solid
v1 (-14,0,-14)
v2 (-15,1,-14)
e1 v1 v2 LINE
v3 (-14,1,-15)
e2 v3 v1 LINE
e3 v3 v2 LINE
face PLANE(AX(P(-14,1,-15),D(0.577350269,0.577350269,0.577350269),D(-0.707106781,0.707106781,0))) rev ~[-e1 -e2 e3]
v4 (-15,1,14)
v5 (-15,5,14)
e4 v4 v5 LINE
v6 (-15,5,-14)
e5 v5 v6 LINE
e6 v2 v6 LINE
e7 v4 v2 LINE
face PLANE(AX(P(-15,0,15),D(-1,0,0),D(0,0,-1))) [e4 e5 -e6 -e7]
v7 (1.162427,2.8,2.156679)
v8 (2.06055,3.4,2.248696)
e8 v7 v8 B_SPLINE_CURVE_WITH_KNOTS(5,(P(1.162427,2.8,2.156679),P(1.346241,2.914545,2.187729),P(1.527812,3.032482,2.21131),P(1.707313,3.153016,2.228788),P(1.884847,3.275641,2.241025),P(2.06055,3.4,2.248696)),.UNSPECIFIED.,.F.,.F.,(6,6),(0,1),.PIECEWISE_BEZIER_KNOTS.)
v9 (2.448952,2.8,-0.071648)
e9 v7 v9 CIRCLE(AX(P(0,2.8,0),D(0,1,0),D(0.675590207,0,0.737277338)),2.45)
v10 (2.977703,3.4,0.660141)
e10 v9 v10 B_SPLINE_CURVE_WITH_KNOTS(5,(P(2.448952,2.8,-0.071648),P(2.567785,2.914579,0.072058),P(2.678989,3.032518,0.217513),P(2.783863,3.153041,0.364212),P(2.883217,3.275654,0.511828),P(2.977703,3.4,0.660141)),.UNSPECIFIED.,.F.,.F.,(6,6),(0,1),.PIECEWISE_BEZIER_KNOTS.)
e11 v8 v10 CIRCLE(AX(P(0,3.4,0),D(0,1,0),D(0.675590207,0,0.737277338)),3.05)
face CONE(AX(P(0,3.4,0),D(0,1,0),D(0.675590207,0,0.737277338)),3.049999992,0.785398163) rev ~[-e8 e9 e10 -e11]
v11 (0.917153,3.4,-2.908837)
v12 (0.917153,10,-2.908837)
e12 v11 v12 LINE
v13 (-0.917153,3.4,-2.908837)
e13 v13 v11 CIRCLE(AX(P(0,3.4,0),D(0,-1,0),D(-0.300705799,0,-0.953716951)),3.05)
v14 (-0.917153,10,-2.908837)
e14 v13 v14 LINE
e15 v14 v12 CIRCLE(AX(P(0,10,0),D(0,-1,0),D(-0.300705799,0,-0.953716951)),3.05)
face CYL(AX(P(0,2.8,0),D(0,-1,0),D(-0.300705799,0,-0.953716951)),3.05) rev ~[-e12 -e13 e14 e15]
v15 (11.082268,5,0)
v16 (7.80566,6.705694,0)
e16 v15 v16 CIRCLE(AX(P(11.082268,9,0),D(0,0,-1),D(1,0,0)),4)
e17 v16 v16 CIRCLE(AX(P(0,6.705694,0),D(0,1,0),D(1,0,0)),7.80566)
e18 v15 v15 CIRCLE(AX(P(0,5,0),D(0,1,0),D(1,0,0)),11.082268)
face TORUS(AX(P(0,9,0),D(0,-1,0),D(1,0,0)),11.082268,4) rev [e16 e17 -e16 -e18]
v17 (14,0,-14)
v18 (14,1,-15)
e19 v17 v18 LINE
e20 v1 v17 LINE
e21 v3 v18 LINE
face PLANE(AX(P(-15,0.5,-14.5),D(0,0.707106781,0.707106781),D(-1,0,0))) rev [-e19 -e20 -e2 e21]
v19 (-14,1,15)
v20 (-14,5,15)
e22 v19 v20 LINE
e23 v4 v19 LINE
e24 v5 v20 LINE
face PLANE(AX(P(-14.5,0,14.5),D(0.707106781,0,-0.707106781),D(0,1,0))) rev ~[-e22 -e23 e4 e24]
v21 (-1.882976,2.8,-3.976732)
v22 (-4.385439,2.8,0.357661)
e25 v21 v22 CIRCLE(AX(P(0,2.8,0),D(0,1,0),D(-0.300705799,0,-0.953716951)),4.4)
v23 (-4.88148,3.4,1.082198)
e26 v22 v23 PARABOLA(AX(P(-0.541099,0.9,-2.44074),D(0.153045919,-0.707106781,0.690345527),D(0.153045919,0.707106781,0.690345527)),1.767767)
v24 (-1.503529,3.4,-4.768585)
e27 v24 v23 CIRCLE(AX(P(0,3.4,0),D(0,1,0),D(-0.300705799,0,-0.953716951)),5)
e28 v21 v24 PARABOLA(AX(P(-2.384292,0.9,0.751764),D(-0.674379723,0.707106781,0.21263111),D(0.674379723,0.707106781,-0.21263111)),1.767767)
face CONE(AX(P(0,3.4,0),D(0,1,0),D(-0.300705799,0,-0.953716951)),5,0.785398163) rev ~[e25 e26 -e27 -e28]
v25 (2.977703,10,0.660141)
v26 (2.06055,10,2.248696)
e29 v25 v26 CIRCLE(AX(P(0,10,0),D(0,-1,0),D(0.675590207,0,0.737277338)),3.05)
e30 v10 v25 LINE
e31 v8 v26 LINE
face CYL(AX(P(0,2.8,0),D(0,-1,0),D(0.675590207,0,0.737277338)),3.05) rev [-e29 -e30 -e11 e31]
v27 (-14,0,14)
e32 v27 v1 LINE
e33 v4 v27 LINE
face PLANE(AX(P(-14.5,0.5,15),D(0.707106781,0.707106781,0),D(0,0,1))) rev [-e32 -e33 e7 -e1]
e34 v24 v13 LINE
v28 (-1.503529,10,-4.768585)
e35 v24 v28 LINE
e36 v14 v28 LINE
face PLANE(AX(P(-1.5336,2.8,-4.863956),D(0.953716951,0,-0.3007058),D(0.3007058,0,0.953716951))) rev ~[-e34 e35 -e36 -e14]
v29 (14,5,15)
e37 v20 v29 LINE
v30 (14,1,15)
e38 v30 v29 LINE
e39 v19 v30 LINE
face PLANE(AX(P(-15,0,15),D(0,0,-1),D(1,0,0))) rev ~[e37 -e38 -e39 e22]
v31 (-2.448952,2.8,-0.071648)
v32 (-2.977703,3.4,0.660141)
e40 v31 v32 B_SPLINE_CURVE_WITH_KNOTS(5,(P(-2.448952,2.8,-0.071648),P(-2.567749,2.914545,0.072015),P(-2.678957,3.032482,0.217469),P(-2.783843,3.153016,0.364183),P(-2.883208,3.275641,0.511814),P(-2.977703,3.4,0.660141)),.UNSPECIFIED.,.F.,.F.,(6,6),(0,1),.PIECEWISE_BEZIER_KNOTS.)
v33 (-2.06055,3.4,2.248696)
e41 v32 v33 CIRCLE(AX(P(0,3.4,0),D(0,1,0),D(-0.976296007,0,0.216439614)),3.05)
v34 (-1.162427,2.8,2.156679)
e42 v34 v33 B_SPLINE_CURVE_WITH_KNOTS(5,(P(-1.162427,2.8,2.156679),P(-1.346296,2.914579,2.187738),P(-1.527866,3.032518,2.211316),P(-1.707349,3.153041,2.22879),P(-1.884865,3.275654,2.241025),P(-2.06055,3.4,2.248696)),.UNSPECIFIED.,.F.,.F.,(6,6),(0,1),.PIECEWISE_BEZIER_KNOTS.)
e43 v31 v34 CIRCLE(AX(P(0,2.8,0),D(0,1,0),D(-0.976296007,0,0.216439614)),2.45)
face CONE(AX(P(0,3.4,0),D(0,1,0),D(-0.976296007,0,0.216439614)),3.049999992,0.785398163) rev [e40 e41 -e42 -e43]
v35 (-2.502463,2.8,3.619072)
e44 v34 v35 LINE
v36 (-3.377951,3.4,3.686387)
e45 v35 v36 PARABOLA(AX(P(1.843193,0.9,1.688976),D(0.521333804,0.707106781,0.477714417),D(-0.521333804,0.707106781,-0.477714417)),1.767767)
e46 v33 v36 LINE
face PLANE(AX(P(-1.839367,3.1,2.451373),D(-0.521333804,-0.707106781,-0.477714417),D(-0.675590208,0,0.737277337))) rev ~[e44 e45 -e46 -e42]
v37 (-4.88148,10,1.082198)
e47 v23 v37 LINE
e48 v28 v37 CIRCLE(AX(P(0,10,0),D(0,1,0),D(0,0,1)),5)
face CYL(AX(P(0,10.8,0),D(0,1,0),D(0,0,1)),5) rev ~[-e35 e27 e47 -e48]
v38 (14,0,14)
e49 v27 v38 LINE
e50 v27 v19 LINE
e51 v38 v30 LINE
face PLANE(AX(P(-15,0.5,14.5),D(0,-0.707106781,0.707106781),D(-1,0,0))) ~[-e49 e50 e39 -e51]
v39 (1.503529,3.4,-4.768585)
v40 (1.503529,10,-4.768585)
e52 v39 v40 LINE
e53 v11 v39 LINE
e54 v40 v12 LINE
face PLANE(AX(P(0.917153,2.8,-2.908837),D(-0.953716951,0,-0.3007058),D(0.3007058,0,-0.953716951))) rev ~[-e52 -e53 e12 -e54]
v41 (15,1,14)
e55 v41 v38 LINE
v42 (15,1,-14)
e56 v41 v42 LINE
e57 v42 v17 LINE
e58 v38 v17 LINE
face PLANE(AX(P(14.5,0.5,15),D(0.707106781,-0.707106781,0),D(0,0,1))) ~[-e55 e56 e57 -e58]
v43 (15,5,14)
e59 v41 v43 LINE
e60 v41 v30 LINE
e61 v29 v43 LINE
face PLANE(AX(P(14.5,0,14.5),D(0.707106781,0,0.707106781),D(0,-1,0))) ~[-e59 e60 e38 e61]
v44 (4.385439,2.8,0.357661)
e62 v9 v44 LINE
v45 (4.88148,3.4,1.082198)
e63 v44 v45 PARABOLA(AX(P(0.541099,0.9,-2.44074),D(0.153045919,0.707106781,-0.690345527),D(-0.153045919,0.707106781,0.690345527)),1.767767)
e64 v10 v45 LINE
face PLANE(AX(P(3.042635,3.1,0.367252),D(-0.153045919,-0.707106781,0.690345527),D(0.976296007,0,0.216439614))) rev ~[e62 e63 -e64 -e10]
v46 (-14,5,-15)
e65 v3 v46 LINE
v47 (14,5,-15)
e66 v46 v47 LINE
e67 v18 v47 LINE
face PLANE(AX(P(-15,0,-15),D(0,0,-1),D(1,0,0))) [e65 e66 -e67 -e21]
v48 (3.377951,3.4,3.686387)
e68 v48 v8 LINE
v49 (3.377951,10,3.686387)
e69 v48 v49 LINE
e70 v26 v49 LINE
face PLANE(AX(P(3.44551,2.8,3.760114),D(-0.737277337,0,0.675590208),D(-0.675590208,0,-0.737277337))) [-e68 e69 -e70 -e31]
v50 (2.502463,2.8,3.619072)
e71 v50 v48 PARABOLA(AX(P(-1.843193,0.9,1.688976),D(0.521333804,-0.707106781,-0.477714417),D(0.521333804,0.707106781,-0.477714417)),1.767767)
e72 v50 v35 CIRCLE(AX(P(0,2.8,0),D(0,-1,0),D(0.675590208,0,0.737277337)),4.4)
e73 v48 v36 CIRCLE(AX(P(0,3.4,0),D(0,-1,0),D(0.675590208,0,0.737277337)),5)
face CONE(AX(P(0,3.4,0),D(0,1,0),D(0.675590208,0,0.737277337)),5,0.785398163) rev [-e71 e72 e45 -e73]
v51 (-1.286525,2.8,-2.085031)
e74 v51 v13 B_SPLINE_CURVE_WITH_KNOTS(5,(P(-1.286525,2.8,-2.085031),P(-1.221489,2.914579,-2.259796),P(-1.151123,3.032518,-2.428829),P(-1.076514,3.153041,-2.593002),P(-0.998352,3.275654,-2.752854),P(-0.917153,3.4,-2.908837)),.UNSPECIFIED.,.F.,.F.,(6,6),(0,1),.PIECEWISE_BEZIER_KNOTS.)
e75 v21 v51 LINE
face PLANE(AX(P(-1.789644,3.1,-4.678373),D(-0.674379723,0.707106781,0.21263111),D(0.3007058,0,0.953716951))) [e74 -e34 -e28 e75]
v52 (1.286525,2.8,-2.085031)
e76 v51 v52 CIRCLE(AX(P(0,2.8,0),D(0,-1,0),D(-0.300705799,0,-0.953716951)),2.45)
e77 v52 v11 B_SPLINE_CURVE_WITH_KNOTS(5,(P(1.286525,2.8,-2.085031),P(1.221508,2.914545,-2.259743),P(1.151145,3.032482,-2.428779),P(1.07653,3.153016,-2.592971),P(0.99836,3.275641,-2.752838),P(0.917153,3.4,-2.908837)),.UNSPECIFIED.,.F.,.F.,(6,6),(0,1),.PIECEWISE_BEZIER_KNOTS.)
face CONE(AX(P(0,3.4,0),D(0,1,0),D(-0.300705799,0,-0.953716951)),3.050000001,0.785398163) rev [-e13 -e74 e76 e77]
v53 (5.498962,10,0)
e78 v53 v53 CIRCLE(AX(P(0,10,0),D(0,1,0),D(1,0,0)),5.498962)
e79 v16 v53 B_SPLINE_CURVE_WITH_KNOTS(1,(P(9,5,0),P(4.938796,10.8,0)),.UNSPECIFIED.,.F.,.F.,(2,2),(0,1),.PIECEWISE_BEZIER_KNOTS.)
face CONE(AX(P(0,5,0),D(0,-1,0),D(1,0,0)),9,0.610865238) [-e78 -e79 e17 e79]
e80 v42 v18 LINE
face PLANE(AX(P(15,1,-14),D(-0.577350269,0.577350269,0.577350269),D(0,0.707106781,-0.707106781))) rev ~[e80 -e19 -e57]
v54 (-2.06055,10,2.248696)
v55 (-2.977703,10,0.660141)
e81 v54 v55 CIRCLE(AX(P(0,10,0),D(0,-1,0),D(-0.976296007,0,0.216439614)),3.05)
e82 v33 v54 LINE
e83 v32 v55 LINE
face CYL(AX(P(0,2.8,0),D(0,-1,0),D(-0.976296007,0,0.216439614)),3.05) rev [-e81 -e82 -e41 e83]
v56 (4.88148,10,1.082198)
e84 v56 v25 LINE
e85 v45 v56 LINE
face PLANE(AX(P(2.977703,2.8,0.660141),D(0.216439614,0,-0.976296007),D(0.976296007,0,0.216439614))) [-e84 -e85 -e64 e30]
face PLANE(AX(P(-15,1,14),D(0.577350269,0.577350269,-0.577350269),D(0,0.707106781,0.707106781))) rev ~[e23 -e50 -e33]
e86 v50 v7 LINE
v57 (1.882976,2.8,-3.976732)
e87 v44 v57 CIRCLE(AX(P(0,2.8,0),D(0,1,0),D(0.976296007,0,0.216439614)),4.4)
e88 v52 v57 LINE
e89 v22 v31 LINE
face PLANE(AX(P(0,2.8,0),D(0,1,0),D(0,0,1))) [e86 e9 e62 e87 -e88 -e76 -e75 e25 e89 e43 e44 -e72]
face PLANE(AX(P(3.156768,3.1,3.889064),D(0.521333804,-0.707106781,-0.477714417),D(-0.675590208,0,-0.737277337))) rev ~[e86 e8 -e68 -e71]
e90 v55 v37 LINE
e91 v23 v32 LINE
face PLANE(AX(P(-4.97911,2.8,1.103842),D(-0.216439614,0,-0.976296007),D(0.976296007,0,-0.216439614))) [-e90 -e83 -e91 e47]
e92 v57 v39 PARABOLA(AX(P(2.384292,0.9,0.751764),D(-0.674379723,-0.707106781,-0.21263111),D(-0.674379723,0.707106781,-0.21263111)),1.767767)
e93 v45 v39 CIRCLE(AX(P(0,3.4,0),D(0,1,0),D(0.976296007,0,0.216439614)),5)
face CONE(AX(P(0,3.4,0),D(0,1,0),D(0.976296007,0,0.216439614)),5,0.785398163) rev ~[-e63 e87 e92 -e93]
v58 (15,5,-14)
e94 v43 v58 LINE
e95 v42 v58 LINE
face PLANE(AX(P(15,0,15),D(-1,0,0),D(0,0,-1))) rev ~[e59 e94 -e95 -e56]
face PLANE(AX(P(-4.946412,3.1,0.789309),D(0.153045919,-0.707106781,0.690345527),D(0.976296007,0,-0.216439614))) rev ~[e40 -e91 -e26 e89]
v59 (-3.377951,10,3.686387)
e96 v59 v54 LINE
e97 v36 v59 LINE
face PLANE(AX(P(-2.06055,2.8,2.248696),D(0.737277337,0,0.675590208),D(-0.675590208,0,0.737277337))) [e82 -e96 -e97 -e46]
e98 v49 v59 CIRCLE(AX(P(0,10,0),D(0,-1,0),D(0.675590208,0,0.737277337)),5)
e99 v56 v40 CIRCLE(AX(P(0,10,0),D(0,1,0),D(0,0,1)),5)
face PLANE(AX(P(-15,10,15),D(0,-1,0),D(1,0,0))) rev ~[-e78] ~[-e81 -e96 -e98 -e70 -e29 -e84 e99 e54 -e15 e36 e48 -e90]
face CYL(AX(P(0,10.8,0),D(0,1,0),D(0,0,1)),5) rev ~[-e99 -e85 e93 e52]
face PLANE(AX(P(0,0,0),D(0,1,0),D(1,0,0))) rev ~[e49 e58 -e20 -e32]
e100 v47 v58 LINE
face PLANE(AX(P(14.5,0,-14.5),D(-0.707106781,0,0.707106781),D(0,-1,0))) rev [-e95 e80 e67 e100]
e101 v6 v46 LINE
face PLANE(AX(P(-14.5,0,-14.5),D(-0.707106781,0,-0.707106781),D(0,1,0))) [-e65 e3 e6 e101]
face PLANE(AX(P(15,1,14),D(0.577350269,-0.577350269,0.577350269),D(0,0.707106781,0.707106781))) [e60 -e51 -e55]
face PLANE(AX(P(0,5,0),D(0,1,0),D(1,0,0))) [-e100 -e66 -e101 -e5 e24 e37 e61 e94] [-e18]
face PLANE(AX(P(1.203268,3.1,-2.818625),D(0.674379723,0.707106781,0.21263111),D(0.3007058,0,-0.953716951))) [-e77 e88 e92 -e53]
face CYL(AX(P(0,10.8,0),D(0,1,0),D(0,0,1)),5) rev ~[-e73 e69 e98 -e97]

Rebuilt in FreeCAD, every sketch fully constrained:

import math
import FreeCAD as App
import Part
import Sketcher

V = App.Vector
Q = App.Units.Quantity


def edges_at(feature, points):
    """Names of the edges that pass closest to the given points."""
    edges = feature.Shape.Edges
    near = lambda p: min(range(len(edges)), key=lambda i: edges[i].distToShape(Part.Vertex(*p))[0])
    return sorted({f"Edge{near(p) + 1}" for p in points})


def add_polygon(sketch, points):
    """Adds a closed chain of lines whose ends are joined by coincident constraints."""
    first, n = sketch.GeometryCount, len(points)
    for a, b in zip(points, points[1:] + points[:1]):
        sketch.addGeometry(Part.LineSegment(App.Vector(*a, 0), App.Vector(*b, 0)), False)
    for i in range(n):
        sketch.addConstraint(Sketcher.Constraint("Coincident", first + i, 2, first + (i + 1) % n, 1))

doc = App.newDocument("Part")
params = doc.addObject("Spreadsheet::Sheet", "Params")
for row, (alias, value) in enumerate([
    ("sketch1_width", "30 mm"),
    ("pad1_length", "5 mm"),
    ("sketch2_diameter", "18 mm"),
    ("pad2_length", "5.8 mm"),
    ("pad2_taper", "-35 deg"),
    ("sketch3_diameter", "10 mm"),
    ("pocket1_length", "8 mm"),
    ("sketch4_radius", "5.1 mm"),
    ("sketch4_radius2", "3.05 mm"),
    ("pad3_length", "7.5 mm"),
    ("chamfer_size", "1 mm"),
    ("fillet_radius", "4 mm"),
    ("sketch5_width", "30 mm"),
    ("sketch5_height", "2 mm"),
    ("chamfer2_size", "0.6 mm"),
], start=1):
    params.set(f"A{row}", alias)
    params.set(f"B{row}", "=" + value)
    params.setAlias(f"B{row}", alias)

body = doc.addObject("PartDesign::Body", "Body")

sketch1 = body.newObject("Sketcher::SketchObject", "Sketch")
sketch1.AttachmentSupport = (doc.getObject("XZ_Plane"), [""])
sketch1.MapMode = "FlatFace"
add_polygon(sketch1, [(-15, -15), (-15, 15), (15, 15), (15, -15)])
sketch1.addConstraint(Sketcher.Constraint("Vertical", 0))
sketch1.addConstraint(Sketcher.Constraint("Horizontal", 1))
sketch1.addConstraint(Sketcher.Constraint("Vertical", 2))
sketch1.addConstraint(Sketcher.Constraint("Horizontal", 3))
sketch1.addConstraint(Sketcher.Constraint("Symmetric", 0, 2, 2, 2, -1, 1))
sketch1.addConstraint(Sketcher.Constraint("Equal", 3, 0))
sketch1.addConstraint(Sketcher.Constraint("DistanceX", 1, 1, 1, 2, Q("30 mm")))
sketch1.setExpression("Constraints[10]", "Params.sketch1_width")
pad1 = body.newObject("PartDesign::Pad", "Pad")
pad1.Profile = sketch1
pad1.setExpression("Length", "Params.pad1_length")
pad1.Reversed = True

sketch2 = body.newObject("Sketcher::SketchObject", "Sketch001")
sketch2.AttachmentSupport = (doc.getObject("XZ_Plane"), [""])
sketch2.MapMode = "FlatFace"
sketch2.AttachmentOffset = App.Placement(V(0, 0, -5), App.Rotation())
sketch2.addGeometry(Part.Circle(V(0, 0, 0), V(0, 0, 1), 9), False)
sketch2.addConstraint(Sketcher.Constraint("Coincident", 0, 3, -1, 1))
sketch2.addConstraint(Sketcher.Constraint("Diameter", 0, Q("18 mm")))
sketch2.setExpression("Constraints[1]", "Params.sketch2_diameter")
pad2 = body.newObject("PartDesign::Pad", "Pad001")
pad2.Profile = sketch2
pad2.setExpression("Length", "Params.pad2_length")
pad2.Reversed = True
pad2.setExpression("TaperAngle", "Params.pad2_taper")

sketch3 = body.newObject("Sketcher::SketchObject", "Sketch002")
sketch3.AttachmentSupport = (doc.getObject("XZ_Plane"), [""])
sketch3.MapMode = "FlatFace"
sketch3.AttachmentOffset = App.Placement(V(0, 0, -10.8), App.Rotation())
sketch3.addGeometry(Part.Circle(V(0, 0, 0), V(0, 0, 1), 5), False)
sketch3.addConstraint(Sketcher.Constraint("Coincident", 0, 3, -1, 1))
sketch3.addConstraint(Sketcher.Constraint("Diameter", 0, Q("10 mm")))
sketch3.setExpression("Constraints[1]", "Params.sketch3_diameter")
pocket1 = body.newObject("PartDesign::Pocket", "Pocket")
pocket1.Profile = sketch3
pocket1.setExpression("Length", "Params.pocket1_length")
pocket1.Reversed = True

sketch4 = body.newObject("Sketcher::SketchObject", "Sketch003")
sketch4.AttachmentSupport = (doc.getObject("XZ_Plane"), [""])
sketch4.MapMode = "FlatFace"
sketch4.AttachmentOffset = App.Placement(V(0, 0, -2.8), App.Rotation())
sketch4.addGeometry(Part.LineSegment(V(-1.5336, -4.863956, 0), V(-0.917153, -2.908837, 0)), False)
sketch4.addGeometry(Part.ArcOfCircle(Part.Circle(V(0, 0, 0), V(0, 0, 1), 3.05), math.radians(-107.5), math.radians(-72.5)), False)
sketch4.addGeometry(Part.LineSegment(V(0.917153, -2.908837, 0), V(1.5336, -4.863956, 0)), False)
sketch4.addGeometry(Part.ArcOfCircle(Part.Circle(V(0, 0, 0), V(0, 0, 1), 5.1), math.radians(-107.5), math.radians(-72.5)), False)
sketch4.addGeometry(Part.LineSegment(V(2.06055, 2.248696, 0), V(3.44551, 3.760114, 0)), False)
sketch4.addGeometry(Part.ArcOfCircle(Part.Circle(V(0, 0, 0), V(0, 0, 1), 5.1), math.radians(12.5), math.radians(47.5)), False)
sketch4.addGeometry(Part.LineSegment(V(4.97911, 1.103842, 0), V(2.977703, 0.660141, 0)), False)
sketch4.addGeometry(Part.ArcOfCircle(Part.Circle(V(0, 0, 0), V(0, 0, 1), 3.05), math.radians(12.5), math.radians(47.5)), False)
sketch4.addGeometry(Part.LineSegment(V(-2.977703, 0.660141, 0), V(-4.97911, 1.103842, 0)), False)
sketch4.addGeometry(Part.ArcOfCircle(Part.Circle(V(0, 0, 0), V(0, 0, 1), 5.1), math.radians(132.5), math.radians(167.5)), False)
sketch4.addGeometry(Part.LineSegment(V(-3.44551, 3.760114, 0), V(-2.06055, 2.248696, 0)), False)
sketch4.addGeometry(Part.ArcOfCircle(Part.Circle(V(0, 0, 0), V(0, 0, 1), 3.05), math.radians(132.5), math.radians(167.5)), False)
sketch4.addConstraint(Sketcher.Constraint("Coincident", 0, 2, 1, 1))
sketch4.addConstraint(Sketcher.Constraint("Coincident", 1, 2, 2, 1))
sketch4.addConstraint(Sketcher.Constraint("Coincident", 2, 2, 3, 2))
sketch4.addConstraint(Sketcher.Constraint("Coincident", 3, 1, 0, 1))
sketch4.addConstraint(Sketcher.Constraint("Coincident", 4, 2, 5, 2))
sketch4.addConstraint(Sketcher.Constraint("Coincident", 5, 1, 6, 1))
sketch4.addConstraint(Sketcher.Constraint("Coincident", 6, 2, 7, 1))
sketch4.addConstraint(Sketcher.Constraint("Coincident", 7, 2, 4, 1))
sketch4.addConstraint(Sketcher.Constraint("Coincident", 8, 2, 9, 2))
sketch4.addConstraint(Sketcher.Constraint("Coincident", 9, 1, 10, 1))
sketch4.addConstraint(Sketcher.Constraint("Coincident", 10, 2, 11, 1))
sketch4.addConstraint(Sketcher.Constraint("Coincident", 11, 2, 8, 1))
sketch4.addConstraint(Sketcher.Constraint("Coincident", 1, 3, -1, 1))
sketch4.addConstraint(Sketcher.Constraint("Coincident", 3, 3, -1, 1))
sketch4.addConstraint(Sketcher.Constraint("Coincident", 5, 3, -1, 1))
sketch4.addConstraint(Sketcher.Constraint("Coincident", 7, 3, -1, 1))
sketch4.addConstraint(Sketcher.Constraint("Coincident", 9, 3, -1, 1))
sketch4.addConstraint(Sketcher.Constraint("Coincident", 11, 3, -1, 1))
sketch4.addConstraint(Sketcher.Constraint("Equal", 3, 5))
sketch4.addConstraint(Sketcher.Constraint("Equal", 1, 7))
sketch4.addConstraint(Sketcher.Constraint("Equal", 5, 9))
sketch4.addConstraint(Sketcher.Constraint("Equal", 7, 11))
sketch4.addConstraint(Sketcher.Constraint("Horizontal", 0, 2, 1, 2))
sketch4.addConstraint(Sketcher.Constraint("Horizontal", 2, 2, 3, 1))
sketch4.addConstraint(Sketcher.Constraint("Horizontal", 5, 1, 8, 2))
sketch4.addConstraint(Sketcher.Constraint("Horizontal", 4, 2, 9, 1))
sketch4.addConstraint(Sketcher.Constraint("Horizontal", 7, 2, 10, 2))
sketch4.addConstraint(Sketcher.Constraint("Horizontal", 6, 2, 11, 2))
sketch4.addConstraint(Sketcher.Constraint("Radius", 3, Q("5.1 mm")))
sketch4.addConstraint(Sketcher.Constraint("Radius", 1, Q("3.05 mm")))
sketch4.addConstraint(Sketcher.Constraint("Angle", 0, Q("72.5 deg")))
sketch4.addConstraint(Sketcher.Constraint("Angle", 4, Q("47.5 deg")))
sketch4.addConstraint(Sketcher.Constraint("Angle", 6, Q("-167.5 deg")))
sketch4.addConstraint(Sketcher.Constraint("DistanceX", -1, 1, 2, 2, Q("1.5336 mm")))
sketch4.addConstraint(Sketcher.Constraint("DistanceX", 4, 2, 5, 1, Q("1.5336 mm")))
sketch4.addConstraint(Sketcher.Constraint("DistanceX", -1, 1, 4, 2, Q("3.44551 mm")))
sketch4.setExpression("Constraints[28]", "Params.sketch4_radius")
sketch4.setExpression("Constraints[29]", "Params.sketch4_radius2")
pad3 = body.newObject("PartDesign::Pad", "Pad002")
pad3.Profile = sketch4
pad3.setExpression("Length", "Params.pad3_length")
pad3.Reversed = True
doc.recompute()

chamfer = body.newObject("PartDesign::Chamfer", "Chamfer")
chamfer.Base = (pad3, edges_at(pad3, [
    (0, 0, 15),
    (-15, 0, 0),
    (0, 0, -15),
    (15, 0, 0),
    (15, 2.5, 15),
    (-15, 2.5, 15),
    (-15, 2.5, -15),
    (15, 2.5, -15),
]))
chamfer.setExpression("Size", "Params.chamfer_size")
doc.recompute()

fillet = body.newObject("PartDesign::Fillet", "Fillet")
fillet.Base = (chamfer, edges_at(chamfer, [(-9, 5, 0)]))
fillet.setExpression("Radius", "Params.fillet_radius")

sketch5 = body.newObject("Sketcher::SketchObject", "Sketch004")
sketch5.AttachmentSupport = (doc.getObject("XY_Plane"), [""])
sketch5.MapMode = "FlatFace"
sketch5.AttachmentOffset = App.Placement(V(0, 0, 15), App.Rotation())
add_polygon(sketch5, [(-15, 12), (-15, 10), (15, 10), (15, 12)])
sketch5.addConstraint(Sketcher.Constraint("Vertical", 0))
sketch5.addConstraint(Sketcher.Constraint("Horizontal", 1))
sketch5.addConstraint(Sketcher.Constraint("Vertical", 2))
sketch5.addConstraint(Sketcher.Constraint("Horizontal", 3))
sketch5.addConstraint(Sketcher.Constraint("DistanceX", 1, 1, 1, 2, Q("30 mm")))
sketch5.addConstraint(Sketcher.Constraint("DistanceY", 0, 2, 0, 1, Q("2 mm")))
sketch5.addConstraint(Sketcher.Constraint("DistanceX", 0, 2, -1, 1, Q("15 mm")))
sketch5.addConstraint(Sketcher.Constraint("DistanceY", -1, 1, 0, 2, Q("10 mm")))
sketch5.setExpression("Constraints[8]", "Params.sketch5_width")
sketch5.setExpression("Constraints[9]", "Params.sketch5_height")
pocket2 = body.newObject("PartDesign::Pocket", "Pocket001")
pocket2.Profile = sketch5
pocket2.Type = "ThroughAll"
doc.recompute()

chamfer2 = body.newObject("PartDesign::Chamfer", "Chamfer001")
chamfer2.Base = (pocket2, edges_at(pocket2, [
    (-4.33, 2.8, -2.5),
    (-1.21, 2.8, -3.839),
    (1.21, 2.8, -3.839),
    (0, 2.8, -3.05),
    (4.33, 2.8, -2.5),
    (3.93, 2.8, 0.871),
    (2.719, 2.8, 2.968),
    (2.641, 2.8, 1.525),
    (0, 2.8, 5),
    (-2.719, 2.8, 2.968),
    (-3.93, 2.8, 0.871),
    (-2.641, 2.8, 1.525),
]))
chamfer2.setExpression("Size", "Params.chamfer2_size")

doc.recompute()
